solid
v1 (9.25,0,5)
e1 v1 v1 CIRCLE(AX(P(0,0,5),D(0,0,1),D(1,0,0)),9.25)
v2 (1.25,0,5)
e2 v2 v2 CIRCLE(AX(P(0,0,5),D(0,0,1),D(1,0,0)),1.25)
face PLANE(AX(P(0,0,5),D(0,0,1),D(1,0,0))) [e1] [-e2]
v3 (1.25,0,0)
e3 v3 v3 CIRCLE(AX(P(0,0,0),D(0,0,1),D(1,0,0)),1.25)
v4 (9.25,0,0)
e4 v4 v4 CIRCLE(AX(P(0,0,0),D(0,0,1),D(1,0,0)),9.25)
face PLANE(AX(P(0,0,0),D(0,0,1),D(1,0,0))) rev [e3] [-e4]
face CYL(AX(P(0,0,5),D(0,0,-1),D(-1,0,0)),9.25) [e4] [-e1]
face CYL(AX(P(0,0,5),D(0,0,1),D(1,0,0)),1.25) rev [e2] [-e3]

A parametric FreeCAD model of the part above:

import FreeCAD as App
import Part
import Sketcher
from FreeCAD import Vector

doc = App.newDocument("Part")
body = doc.addObject("PartDesign::Body", "Body")

# Sketch on XY plane
sketch1 = body.newObject("Sketcher::SketchObject", "Sketch")
sketch1.AttachmentSupport = (doc.getObject("XY_Plane"), [""])
sketch1.MapMode = "FlatFace"
sketch1.addGeometry(Part.Circle(Vector(0, 0, 0), Vector(0, 0, 1), 9.25), False)
sketch1.addGeometry(Part.Circle(Vector(0, 0, 0), Vector(0, 0, 1), 0.75), False)
sketch1.addConstraint(Sketcher.Constraint("Coincident", 0, 3, -1, 1))
sketch1.addConstraint(Sketcher.Constraint("Coincident", 1, 3, -1, 1))
sketch1.addConstraint(Sketcher.Constraint("Diameter", 0, 18.5))
sketch1.addConstraint(Sketcher.Constraint("Diameter", 1, 1.5))
pad1 = body.newObject("PartDesign::Pad", "Pad")
pad1.Profile = sketch1
pad1.Length = 5

# Sketch on XY plane
sketch2 = body.newObject("Sketcher::SketchObject", "Sketch001")
sketch2.AttachmentSupport = (doc.getObject("XY_Plane"), [""])
sketch2.MapMode = "FlatFace"
sketch2.AttachmentOffset = App.Placement(Vector(0, 0, 5), App.Rotation())
sketch2.addGeometry(Part.Circle(Vector(0, 0, 0), Vector(0, 0, 1), 1.25), False)
sketch2.addConstraint(Sketcher.Constraint("Coincident", 0, 3, -1, 1))
sketch2.addConstraint(Sketcher.Constraint("Diameter", 0, 2.5))
doc.recompute()
hole = body.newObject("PartDesign::Hole", "Hole")
hole.Profile = sketch2
hole.ThreadType = "None"
hole.Diameter = 2.5
hole.DepthType = "ThroughAll"

doc.recompute()
